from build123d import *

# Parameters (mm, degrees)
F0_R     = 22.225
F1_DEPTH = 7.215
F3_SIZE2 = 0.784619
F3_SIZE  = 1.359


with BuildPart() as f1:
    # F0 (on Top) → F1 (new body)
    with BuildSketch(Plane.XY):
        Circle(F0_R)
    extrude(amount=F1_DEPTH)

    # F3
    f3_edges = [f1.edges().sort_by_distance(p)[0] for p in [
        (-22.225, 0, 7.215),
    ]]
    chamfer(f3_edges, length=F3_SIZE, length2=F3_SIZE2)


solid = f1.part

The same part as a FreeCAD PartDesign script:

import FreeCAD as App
import Part
import Sketcher
from FreeCAD import Vector
Q = App.Units.Quantity


def edges_at(feature, points):
    """Names of the edges that pass closest to the given points."""
    edges = feature.Shape.Edges
    near = lambda p: min(range(len(edges)), key=lambda i: edges[i].distToShape(Part.Vertex(*p))[0])
    return sorted({f"Edge{near(p) + 1}" for p in points})

doc = App.newDocument("Part")
body = doc.addObject("PartDesign::Body", "Body")

# Sketch on XY plane
sketch1 = body.newObject("Sketcher::SketchObject", "Sketch")
sketch1.AttachmentSupport = (doc.getObject("XY_Plane"), [""])
sketch1.MapMode = "FlatFace"
sketch1.addGeometry(Part.Circle(Vector(0, 0, 0), Vector(0, 0, 1), 22), False)
sketch1.addConstraint(Sketcher.Constraint("Coincident", 0, 3, -1, 1))
sketch1.addConstraint(Sketcher.Constraint("Diameter", 0, Q("1.75 in")))
pad1 = body.newObject("PartDesign::Pad", "Pad")
pad1.Profile = sketch1
pad1.Length = 7.215
doc.recompute()

chamfer = body.newObject("PartDesign::Chamfer", "Chamfer")
chamfer.Base = (pad1, edges_at(pad1, [(-22.225, 0, 7.215)]))
chamfer.ChamferType = "Two distances"
chamfer.Size = 1.359
chamfer.Size2 = 0.784619

doc.recompute()
